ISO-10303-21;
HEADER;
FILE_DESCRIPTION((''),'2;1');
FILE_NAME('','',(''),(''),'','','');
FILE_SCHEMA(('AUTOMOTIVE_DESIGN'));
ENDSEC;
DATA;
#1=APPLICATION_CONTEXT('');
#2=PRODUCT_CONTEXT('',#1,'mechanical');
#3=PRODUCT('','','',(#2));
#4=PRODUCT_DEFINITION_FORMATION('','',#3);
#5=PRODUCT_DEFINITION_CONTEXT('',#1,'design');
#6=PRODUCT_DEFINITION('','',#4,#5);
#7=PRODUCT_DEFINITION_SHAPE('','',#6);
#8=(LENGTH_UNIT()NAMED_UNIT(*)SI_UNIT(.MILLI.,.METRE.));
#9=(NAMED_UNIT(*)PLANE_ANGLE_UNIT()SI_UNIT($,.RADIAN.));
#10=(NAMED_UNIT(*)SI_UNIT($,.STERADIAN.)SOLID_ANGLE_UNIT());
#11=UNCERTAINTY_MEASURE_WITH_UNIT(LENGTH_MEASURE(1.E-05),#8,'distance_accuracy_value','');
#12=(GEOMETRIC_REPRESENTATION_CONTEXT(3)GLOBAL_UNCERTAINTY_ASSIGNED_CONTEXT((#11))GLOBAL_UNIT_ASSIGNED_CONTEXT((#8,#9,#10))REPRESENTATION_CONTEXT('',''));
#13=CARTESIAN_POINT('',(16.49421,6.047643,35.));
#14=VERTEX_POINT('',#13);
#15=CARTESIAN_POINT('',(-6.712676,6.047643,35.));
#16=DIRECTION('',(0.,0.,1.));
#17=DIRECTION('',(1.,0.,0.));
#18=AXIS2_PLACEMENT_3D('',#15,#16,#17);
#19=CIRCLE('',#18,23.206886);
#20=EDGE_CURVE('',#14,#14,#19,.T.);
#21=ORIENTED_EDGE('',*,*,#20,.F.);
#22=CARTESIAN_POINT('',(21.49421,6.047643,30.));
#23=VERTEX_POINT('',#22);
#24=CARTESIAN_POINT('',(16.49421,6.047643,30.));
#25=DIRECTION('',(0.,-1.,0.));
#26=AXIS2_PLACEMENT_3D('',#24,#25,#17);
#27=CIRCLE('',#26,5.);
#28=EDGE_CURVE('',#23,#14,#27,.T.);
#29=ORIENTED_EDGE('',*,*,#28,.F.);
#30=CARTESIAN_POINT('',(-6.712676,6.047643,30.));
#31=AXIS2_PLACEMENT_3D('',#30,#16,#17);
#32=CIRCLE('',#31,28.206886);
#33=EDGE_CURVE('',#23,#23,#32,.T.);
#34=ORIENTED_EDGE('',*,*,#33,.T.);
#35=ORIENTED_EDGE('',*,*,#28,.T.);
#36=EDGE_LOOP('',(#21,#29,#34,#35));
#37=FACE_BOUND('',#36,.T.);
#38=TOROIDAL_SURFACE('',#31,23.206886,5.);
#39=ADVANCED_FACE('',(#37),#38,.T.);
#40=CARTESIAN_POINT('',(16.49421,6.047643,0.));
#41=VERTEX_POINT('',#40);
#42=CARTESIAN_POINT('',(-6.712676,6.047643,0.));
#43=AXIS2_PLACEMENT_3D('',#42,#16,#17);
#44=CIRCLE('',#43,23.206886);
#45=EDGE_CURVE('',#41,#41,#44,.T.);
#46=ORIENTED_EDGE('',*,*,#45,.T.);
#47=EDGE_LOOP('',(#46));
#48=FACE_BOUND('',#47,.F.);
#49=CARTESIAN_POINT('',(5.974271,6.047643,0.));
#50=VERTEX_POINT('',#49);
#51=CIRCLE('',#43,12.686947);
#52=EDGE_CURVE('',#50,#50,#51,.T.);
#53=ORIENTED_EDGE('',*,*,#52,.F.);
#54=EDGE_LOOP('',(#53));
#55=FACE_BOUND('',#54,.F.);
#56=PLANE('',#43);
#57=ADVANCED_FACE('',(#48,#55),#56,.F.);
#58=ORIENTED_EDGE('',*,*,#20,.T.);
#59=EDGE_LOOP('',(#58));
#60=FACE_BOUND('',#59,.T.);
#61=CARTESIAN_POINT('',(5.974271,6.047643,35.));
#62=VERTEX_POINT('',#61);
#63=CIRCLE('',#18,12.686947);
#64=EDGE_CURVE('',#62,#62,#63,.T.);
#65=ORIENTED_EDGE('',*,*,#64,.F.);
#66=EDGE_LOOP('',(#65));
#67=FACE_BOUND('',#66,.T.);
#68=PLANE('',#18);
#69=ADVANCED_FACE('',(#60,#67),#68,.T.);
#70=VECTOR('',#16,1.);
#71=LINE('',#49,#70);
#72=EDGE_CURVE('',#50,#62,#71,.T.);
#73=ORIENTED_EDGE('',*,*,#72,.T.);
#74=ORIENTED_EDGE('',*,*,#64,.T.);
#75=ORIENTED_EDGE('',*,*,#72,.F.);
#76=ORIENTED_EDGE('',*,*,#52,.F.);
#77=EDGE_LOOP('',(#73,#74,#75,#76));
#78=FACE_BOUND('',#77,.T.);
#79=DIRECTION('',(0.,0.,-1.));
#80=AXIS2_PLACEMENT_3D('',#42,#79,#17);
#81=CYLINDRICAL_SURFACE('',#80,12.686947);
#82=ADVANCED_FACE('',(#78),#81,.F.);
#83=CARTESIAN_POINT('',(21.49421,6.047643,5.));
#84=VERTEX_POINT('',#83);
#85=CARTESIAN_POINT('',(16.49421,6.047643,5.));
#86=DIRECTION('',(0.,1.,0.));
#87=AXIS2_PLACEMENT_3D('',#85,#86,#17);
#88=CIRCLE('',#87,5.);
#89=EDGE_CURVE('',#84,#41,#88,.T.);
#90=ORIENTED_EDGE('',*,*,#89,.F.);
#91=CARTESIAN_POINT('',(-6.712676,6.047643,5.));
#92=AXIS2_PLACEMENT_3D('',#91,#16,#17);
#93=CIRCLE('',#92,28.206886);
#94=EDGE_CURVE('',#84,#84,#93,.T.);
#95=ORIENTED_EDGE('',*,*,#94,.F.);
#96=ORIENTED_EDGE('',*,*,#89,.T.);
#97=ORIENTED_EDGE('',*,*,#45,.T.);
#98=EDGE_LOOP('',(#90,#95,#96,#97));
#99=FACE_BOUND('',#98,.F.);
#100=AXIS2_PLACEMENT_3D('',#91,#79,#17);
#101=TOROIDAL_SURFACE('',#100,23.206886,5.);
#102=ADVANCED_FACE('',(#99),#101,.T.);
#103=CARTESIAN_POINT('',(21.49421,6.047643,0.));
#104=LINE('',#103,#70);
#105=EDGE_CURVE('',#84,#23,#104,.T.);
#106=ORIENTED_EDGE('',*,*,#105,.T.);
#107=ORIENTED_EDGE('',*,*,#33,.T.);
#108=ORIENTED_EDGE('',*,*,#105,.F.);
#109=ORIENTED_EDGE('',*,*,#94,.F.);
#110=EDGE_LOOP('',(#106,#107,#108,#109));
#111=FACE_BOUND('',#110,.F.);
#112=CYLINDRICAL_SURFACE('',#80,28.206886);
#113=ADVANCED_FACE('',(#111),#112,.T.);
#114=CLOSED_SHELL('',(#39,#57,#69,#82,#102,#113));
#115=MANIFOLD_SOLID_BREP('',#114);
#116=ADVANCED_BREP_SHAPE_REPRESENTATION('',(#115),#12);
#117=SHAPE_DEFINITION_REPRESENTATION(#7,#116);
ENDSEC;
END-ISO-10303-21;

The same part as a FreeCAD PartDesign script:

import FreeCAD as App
import Part
import Sketcher


def edges_at(feature, points):
    """Names of the edges that pass closest to the given points."""
    edges = feature.Shape.Edges
    near = lambda p: min(range(len(edges)), key=lambda i: edges[i].distToShape(Part.Vertex(*p))[0])
    return sorted({f"Edge{near(p) + 1}" for p in points})

doc = App.newDocument("Part")
body = doc.addObject("PartDesign::Body", "Body")

# Sketch on XY plane
sketch1 = body.newObject("Sketcher::SketchObject", "Sketch")
sketch1.AttachmentSupport = (doc.getObject("XY_Plane"), [""])
sketch1.MapMode = "FlatFace"
sketch1.addGeometry([
    Part.Circle(App.Vector(-6.712676, 6.047643, 0), App.Vector(0, 0, 1), 28.206886),
    Part.Circle(App.Vector(-6.712676, 6.047643, 0), App.Vector(0, 0, 1), 12.686947),
], False)
sketch1.addConstraint([
    Sketcher.Constraint("Coincident", 1, 3, 0, 3),
    Sketcher.Constraint("Diameter", 0, 56.413772),
    Sketcher.Constraint("Diameter", 1, 25.373894),
    Sketcher.Constraint("DistanceX", 0, 3, -1, 1, 6.712676),
    Sketcher.Constraint("DistanceY", -1, 1, 0, 3, 6.047643),
])
pad1 = body.newObject("PartDesign::Pad", "Pad")
pad1.Profile = sketch1
pad1.Length = 35
doc.recompute()

fillet = body.newObject("PartDesign::Fillet", "Fillet")
fillet.Base = (pad1, edges_at(pad1, [(21.494, 6.048, 17.5), (-34.92, 6.048, 0), (-34.92, 6.048, 35)]))
fillet.Radius = 5

doc.recompute()
